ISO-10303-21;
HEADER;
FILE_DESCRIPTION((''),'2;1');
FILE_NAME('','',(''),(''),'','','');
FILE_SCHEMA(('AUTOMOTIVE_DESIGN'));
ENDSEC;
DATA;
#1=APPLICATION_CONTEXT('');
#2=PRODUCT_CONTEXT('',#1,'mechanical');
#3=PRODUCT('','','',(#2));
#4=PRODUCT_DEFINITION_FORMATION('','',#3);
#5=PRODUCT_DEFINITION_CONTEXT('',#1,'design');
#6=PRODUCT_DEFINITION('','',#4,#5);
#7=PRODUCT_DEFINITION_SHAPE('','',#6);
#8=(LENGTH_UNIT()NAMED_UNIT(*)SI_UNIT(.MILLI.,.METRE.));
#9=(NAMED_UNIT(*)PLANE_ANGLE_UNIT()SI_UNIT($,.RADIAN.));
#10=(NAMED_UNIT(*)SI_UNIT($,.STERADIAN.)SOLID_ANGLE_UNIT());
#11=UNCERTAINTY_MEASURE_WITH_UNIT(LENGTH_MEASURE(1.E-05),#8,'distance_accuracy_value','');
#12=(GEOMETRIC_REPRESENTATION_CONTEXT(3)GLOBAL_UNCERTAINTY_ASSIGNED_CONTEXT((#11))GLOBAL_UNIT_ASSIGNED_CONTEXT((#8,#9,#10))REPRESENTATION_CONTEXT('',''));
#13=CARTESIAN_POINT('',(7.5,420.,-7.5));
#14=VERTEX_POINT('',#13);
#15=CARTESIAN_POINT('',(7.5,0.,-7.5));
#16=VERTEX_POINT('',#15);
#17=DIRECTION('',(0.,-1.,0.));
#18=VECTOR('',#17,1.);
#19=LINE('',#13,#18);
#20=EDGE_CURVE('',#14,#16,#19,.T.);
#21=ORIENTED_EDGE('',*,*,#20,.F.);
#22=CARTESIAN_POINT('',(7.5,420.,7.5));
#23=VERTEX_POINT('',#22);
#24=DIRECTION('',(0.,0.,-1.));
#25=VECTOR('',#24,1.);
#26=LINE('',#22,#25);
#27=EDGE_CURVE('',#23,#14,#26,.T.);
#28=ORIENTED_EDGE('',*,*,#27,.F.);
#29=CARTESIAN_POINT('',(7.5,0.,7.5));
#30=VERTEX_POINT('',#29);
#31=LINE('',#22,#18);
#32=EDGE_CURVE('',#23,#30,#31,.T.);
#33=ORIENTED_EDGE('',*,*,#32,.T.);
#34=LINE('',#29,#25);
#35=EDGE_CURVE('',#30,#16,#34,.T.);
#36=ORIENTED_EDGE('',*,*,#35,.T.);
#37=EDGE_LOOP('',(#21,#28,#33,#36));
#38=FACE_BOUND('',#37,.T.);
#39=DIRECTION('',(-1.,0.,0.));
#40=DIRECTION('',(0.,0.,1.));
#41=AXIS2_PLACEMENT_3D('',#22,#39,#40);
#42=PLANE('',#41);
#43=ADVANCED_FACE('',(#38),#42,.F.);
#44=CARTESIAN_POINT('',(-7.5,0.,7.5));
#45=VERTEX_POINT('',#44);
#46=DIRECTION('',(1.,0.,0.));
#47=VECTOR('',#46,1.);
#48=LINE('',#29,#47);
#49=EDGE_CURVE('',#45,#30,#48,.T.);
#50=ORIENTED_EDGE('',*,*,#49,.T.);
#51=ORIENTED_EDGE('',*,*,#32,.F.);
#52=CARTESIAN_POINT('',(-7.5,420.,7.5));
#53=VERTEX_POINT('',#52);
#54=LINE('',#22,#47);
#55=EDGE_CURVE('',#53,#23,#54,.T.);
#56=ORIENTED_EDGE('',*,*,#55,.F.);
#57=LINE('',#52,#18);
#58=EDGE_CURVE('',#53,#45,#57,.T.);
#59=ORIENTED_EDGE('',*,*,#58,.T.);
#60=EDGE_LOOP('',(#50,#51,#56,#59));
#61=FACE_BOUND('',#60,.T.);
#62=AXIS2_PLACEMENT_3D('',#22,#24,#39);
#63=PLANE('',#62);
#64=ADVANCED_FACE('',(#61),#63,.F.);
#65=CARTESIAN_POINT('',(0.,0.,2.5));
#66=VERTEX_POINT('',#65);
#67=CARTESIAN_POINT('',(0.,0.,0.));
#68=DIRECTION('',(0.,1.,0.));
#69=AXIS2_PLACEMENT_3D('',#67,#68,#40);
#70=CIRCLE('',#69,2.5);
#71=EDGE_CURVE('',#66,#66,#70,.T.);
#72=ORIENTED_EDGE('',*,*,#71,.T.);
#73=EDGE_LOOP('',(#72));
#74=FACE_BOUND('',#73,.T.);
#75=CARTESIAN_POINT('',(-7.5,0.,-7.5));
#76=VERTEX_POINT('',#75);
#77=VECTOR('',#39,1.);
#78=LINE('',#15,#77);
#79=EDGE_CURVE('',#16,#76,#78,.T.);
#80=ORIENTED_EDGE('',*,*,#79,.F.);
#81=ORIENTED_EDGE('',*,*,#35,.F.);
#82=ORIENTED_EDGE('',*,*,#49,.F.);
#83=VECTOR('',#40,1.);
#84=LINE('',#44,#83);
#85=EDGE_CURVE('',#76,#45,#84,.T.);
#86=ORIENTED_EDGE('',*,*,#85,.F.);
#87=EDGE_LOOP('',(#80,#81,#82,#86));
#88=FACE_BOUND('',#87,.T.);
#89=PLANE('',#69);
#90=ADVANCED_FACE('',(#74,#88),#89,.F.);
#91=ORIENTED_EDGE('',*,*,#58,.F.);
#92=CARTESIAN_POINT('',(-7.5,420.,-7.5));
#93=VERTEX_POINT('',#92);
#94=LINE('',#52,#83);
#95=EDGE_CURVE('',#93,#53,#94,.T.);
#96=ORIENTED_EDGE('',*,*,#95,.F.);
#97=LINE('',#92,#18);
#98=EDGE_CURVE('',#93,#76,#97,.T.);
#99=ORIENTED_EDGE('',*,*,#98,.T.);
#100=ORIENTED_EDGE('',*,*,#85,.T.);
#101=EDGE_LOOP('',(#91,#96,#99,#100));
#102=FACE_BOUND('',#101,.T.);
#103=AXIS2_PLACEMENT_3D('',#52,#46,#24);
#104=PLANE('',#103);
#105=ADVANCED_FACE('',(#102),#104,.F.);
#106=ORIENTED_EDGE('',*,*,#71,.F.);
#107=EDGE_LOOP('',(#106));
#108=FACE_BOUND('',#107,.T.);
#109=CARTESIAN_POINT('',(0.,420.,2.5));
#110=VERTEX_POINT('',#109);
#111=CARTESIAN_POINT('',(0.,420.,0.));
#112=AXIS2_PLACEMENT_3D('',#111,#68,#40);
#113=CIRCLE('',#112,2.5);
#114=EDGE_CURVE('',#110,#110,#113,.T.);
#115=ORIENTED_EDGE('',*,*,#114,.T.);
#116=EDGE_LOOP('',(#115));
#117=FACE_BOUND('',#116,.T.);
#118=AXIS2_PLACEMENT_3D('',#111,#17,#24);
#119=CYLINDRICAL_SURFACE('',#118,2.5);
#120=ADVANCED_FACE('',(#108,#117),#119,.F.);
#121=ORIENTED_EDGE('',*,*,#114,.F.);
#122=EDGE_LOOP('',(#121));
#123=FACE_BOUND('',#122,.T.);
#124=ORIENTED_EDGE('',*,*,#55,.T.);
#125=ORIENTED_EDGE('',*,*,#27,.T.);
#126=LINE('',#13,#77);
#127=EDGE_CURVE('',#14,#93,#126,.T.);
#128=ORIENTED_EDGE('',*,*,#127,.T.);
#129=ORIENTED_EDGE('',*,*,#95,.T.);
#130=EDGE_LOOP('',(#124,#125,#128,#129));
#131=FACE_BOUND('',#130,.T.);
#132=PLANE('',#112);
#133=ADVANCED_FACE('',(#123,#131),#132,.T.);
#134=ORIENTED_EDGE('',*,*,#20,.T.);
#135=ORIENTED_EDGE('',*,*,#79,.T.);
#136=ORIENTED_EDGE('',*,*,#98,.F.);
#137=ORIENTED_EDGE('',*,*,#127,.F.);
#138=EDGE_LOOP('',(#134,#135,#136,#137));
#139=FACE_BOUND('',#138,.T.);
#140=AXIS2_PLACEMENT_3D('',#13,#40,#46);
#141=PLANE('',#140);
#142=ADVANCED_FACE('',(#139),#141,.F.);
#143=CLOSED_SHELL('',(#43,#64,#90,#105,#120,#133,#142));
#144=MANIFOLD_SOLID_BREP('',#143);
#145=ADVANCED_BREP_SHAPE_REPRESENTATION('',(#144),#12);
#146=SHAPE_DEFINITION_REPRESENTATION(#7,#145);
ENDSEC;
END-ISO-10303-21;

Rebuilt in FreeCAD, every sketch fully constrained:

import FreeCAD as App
import Part
import Sketcher

doc = App.newDocument("Part")
params = doc.addObject("Spreadsheet::Sheet", "Params")
for row, (alias, value) in enumerate([
    ("sketch1_diameter", "5 mm"),
    ("sketch1_width", "15 mm"),
    ("pad1_length", "420 mm"),
], start=1):
    params.set(f"A{row}", alias)
    params.set(f"B{row}", "=" + value)
    params.setAlias(f"B{row}", alias)

body = doc.addObject("PartDesign::Body", "Body")

# Sketch on XZ plane
sketch1 = body.newObject("Sketcher::SketchObject", "Sketch")
sketch1.AttachmentSupport = (doc.getObject("XZ_Plane"), [""])
sketch1.MapMode = "FlatFace"
sketch1.addGeometry([
    Part.LineSegment(App.Vector(-7.5, -7.5, 0), App.Vector(-7.5, 7.5, 0)),  # 0
    Part.LineSegment(App.Vector(-7.5, 7.5, 0), App.Vector(7.5, 7.5, 0)),  # 1
    Part.LineSegment(App.Vector(7.5, 7.5, 0), App.Vector(7.5, -7.5, 0)),  # 2
    Part.LineSegment(App.Vector(7.5, -7.5, 0), App.Vector(-7.5, -7.5, 0)),  # 3
    Part.Circle(App.Vector(0, 0, 0), App.Vector(0, 0, 1), 2.5),  # 4
], False)
sketch1.addConstraint([
    Sketcher.Constraint("Coincident", 0, 2, 1, 1),
    Sketcher.Constraint("Coincident", 1, 2, 2, 1),
    Sketcher.Constraint("Coincident", 2, 2, 3, 1),
    Sketcher.Constraint("Coincident", 3, 2, 0, 1),
    Sketcher.Constraint("Vertical", 0),
    Sketcher.Constraint("Horizontal", 1),
    Sketcher.Constraint("Vertical", 2),
    Sketcher.Constraint("Horizontal", 3),
    Sketcher.Constraint("Coincident", 4, 3, -1, 1),
    Sketcher.Constraint("Symmetric", 0, 2, 2, 2, -1, 1),
    Sketcher.Constraint("Equal", 3, 0),
    Sketcher.Constraint("Diameter", 4, 5.0),
    Sketcher.Constraint("DistanceX", 1, 1, 1, 2, 15.0),
])
sketch1.setExpression("Constraints[11]", "Params.sketch1_diameter")
sketch1.setExpression("Constraints[12]", "Params.sketch1_width")
pad1 = body.newObject("PartDesign::Pad", "Pad")
pad1.Profile = sketch1
pad1.setExpression("Length", "Params.pad1_length")
pad1.Reversed = True

doc.recompute()
